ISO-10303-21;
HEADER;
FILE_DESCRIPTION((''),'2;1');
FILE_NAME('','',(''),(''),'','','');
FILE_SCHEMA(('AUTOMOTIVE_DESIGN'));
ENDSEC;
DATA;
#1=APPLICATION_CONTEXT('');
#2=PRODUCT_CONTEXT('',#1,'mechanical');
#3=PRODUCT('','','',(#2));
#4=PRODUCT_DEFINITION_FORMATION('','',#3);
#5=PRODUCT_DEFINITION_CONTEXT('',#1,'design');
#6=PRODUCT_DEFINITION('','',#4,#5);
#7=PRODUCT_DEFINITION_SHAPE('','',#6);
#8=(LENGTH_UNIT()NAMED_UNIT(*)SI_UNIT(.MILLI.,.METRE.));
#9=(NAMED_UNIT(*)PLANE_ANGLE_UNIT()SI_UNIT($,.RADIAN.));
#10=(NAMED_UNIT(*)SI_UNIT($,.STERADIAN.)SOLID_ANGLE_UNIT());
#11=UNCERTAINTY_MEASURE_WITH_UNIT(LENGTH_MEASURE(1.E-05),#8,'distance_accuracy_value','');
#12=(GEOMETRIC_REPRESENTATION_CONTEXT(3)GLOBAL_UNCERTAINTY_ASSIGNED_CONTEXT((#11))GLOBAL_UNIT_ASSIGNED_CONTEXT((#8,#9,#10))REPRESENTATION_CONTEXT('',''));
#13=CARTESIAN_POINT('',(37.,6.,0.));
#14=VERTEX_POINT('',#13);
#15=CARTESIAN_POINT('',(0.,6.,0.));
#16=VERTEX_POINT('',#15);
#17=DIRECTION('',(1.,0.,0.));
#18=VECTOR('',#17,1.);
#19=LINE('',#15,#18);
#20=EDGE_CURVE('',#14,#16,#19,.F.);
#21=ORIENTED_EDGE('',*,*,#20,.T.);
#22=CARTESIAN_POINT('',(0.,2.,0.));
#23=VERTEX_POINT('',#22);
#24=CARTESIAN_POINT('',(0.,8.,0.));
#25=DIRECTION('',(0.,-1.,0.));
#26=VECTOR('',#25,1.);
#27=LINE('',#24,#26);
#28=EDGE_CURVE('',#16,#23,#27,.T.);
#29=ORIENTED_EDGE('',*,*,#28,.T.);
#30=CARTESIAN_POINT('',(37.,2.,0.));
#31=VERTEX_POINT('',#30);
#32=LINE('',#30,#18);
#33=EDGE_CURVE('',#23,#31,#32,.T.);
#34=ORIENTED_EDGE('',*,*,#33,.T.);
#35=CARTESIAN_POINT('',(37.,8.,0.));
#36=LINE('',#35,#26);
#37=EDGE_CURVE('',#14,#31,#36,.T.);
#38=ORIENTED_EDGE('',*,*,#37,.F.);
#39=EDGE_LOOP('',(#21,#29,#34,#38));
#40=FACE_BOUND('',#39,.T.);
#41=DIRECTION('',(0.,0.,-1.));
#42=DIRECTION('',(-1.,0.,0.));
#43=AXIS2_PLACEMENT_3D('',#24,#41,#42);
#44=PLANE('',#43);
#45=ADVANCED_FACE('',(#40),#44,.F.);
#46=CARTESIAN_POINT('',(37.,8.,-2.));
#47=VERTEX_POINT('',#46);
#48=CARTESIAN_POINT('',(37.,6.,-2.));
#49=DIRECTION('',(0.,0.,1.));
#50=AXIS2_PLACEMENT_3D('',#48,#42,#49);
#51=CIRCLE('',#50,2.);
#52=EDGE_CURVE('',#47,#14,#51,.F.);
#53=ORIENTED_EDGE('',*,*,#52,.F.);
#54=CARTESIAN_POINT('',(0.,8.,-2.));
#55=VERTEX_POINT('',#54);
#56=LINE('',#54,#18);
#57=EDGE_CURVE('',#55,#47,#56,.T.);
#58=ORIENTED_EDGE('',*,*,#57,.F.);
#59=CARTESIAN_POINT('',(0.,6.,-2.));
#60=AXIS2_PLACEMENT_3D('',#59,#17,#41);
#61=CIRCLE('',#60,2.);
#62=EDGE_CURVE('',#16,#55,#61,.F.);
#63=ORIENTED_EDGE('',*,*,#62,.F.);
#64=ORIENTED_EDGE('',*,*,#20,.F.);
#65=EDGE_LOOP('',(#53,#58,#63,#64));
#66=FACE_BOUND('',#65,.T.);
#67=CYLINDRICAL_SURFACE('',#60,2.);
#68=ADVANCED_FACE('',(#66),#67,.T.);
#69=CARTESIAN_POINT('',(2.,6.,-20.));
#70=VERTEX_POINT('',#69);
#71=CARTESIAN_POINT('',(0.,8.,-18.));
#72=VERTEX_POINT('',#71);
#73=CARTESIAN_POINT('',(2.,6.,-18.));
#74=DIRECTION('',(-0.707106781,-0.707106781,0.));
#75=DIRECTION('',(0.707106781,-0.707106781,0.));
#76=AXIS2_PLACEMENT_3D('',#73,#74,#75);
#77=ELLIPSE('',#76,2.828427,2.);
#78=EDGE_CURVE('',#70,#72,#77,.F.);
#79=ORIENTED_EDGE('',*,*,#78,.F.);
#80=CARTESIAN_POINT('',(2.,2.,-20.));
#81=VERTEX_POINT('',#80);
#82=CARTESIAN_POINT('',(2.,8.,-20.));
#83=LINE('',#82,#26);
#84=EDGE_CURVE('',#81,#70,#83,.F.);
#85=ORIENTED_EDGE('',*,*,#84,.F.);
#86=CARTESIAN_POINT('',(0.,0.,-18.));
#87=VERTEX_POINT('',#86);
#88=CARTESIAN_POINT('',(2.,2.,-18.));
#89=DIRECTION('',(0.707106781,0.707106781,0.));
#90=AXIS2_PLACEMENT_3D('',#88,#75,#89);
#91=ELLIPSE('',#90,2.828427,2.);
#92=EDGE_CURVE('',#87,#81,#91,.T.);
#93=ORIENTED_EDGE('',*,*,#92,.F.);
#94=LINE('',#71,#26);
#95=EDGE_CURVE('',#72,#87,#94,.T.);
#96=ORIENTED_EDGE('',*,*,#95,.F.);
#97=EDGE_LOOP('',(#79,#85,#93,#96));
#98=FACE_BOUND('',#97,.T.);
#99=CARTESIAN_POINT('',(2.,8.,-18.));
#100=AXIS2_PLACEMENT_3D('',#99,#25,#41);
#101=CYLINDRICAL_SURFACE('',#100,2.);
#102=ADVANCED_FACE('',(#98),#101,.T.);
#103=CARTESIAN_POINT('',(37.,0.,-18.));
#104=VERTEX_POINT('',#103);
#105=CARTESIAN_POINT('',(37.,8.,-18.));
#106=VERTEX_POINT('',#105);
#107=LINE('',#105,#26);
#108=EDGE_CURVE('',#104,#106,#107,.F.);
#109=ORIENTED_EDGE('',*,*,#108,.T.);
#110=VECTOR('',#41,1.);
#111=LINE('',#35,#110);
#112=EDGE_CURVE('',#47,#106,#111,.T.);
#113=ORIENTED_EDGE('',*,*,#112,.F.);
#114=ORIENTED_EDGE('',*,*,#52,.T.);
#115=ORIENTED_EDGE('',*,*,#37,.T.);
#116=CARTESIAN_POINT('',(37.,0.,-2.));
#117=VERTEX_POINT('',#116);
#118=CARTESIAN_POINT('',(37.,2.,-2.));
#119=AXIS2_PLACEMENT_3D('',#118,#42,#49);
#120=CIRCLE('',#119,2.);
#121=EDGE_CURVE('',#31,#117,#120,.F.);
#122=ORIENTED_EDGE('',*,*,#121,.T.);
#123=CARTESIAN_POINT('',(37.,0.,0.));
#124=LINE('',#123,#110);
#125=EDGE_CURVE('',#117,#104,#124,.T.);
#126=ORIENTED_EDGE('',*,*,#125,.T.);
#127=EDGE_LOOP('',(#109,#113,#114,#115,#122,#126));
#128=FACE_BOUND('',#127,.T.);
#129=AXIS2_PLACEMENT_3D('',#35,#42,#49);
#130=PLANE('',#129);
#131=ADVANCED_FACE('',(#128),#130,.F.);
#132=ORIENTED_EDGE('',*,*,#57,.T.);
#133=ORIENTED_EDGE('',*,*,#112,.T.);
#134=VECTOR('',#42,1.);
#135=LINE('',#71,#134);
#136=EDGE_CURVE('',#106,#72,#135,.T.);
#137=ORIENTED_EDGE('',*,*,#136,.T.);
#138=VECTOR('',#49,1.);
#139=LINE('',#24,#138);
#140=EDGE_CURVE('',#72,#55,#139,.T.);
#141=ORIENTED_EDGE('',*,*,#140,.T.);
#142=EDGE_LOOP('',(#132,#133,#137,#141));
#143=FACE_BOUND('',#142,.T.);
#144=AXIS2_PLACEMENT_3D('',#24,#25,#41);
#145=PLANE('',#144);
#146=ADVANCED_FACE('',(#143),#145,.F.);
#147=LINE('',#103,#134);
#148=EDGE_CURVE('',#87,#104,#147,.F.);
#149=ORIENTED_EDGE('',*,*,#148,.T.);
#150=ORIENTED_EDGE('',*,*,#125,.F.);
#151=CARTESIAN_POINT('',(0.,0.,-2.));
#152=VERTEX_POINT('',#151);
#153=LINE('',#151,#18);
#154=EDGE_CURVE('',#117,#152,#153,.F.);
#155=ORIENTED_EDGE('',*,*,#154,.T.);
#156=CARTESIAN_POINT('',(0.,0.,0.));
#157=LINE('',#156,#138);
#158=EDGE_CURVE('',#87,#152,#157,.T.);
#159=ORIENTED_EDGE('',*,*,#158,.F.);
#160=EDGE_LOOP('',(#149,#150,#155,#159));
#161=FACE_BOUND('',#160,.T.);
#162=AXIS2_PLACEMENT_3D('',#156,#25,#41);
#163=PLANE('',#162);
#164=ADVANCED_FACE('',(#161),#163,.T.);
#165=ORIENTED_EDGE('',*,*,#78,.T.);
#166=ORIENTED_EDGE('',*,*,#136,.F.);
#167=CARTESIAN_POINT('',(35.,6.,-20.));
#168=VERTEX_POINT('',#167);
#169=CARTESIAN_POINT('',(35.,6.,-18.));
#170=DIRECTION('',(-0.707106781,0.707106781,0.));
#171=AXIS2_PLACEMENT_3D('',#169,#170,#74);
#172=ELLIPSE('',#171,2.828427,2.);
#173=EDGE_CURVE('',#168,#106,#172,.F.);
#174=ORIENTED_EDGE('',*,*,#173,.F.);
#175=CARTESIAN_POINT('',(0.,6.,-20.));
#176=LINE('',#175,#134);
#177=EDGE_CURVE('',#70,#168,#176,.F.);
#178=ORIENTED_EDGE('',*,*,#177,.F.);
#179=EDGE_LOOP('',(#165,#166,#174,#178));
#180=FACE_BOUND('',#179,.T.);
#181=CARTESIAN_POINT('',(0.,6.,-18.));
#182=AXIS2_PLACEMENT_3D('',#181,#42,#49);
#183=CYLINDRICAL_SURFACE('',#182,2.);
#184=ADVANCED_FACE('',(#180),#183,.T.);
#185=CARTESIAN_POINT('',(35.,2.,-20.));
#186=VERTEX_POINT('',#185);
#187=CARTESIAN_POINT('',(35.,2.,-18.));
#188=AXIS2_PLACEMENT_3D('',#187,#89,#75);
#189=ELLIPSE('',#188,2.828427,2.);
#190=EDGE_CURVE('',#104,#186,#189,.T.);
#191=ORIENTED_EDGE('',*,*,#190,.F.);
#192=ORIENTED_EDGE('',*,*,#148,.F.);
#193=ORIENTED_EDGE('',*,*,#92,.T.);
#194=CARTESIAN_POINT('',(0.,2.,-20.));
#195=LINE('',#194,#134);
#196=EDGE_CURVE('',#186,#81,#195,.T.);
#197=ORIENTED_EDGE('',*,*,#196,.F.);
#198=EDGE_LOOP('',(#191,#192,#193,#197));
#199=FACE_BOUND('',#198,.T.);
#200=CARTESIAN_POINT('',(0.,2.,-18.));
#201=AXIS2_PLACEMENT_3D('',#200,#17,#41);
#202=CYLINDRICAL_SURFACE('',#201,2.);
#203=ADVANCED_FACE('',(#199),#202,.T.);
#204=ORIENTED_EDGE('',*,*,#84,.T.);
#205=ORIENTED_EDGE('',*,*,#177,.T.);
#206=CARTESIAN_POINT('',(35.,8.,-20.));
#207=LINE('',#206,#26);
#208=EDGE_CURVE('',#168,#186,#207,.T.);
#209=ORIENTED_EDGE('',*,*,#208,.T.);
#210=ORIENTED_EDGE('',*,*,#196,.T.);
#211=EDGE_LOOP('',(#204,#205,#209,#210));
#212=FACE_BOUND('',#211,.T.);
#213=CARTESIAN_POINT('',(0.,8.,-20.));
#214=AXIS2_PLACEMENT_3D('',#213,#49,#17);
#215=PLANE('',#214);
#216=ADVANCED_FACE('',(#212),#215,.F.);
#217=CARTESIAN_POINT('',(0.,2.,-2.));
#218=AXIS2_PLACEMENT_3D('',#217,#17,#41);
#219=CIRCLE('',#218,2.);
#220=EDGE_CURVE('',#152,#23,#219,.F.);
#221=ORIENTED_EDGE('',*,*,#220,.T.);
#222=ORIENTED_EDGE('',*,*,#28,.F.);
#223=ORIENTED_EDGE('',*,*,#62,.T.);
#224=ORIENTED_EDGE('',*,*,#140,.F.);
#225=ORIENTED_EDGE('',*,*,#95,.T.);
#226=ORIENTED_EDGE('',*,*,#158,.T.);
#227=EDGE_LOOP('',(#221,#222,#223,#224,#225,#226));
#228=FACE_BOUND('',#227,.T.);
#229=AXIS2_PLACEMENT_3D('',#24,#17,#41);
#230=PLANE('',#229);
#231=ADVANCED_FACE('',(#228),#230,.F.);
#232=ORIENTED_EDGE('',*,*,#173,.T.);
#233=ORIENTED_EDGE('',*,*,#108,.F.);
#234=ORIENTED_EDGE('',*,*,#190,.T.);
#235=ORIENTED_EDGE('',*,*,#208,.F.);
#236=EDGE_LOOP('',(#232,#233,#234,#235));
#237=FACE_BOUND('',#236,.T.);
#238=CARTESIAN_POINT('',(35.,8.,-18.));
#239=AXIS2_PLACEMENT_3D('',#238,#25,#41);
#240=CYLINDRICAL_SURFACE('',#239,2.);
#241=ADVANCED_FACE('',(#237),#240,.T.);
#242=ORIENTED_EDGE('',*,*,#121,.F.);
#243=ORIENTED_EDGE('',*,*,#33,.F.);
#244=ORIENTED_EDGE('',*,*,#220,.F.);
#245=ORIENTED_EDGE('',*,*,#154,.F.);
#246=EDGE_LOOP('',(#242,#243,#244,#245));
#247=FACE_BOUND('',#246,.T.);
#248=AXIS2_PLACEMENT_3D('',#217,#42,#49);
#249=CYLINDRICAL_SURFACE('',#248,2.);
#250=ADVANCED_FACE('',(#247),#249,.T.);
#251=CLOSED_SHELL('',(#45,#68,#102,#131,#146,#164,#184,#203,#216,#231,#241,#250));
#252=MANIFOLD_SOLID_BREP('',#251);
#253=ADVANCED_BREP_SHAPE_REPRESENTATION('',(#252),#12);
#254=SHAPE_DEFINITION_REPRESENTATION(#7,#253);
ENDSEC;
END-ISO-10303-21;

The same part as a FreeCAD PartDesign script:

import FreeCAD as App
import Part
import Sketcher
from FreeCAD import Vector
Q = App.Units.Quantity


def edges_at(feature, points):
    """Names of the edges that pass closest to the given points."""
    edges = feature.Shape.Edges
    near = lambda p: min(range(len(edges)), key=lambda i: edges[i].distToShape(Part.Vertex(*p))[0])
    return sorted({f"Edge{near(p) + 1}" for p in points})


def add_polygon(sketch, points):
    """Adds a closed chain of lines whose ends are joined by coincident constraints."""
    first, n = sketch.GeometryCount, len(points)
    for a, b in zip(points, points[1:] + points[:1]):
        sketch.addGeometry(Part.LineSegment(App.Vector(*a, 0), App.Vector(*b, 0)), False)
    for i in range(n):
        sketch.addConstraint(Sketcher.Constraint("Coincident", first + i, 2, first + (i + 1) % n, 1))

doc = App.newDocument("Part")
params = doc.addObject("Spreadsheet::Sheet", "Params")
for row, (alias, value) in enumerate([
    ("sketch1_width", "37 mm"),
    ("sketch1_height", "20 mm"),
    ("pad1_length", "8 mm"),
    ("fillet_radius", "2 mm"),
    ("fillet2_radius", "2 mm"),
], start=1):
    params.set(f"A{row}", alias)
    params.set(f"B{row}", "=" + value)
    params.setAlias(f"B{row}", alias)

body = doc.addObject("PartDesign::Body", "Body")

# Sketch on XZ plane
sketch1 = body.newObject("Sketcher::SketchObject", "Sketch")
sketch1.AttachmentSupport = (doc.getObject("XZ_Plane"), [""])
sketch1.MapMode = "FlatFace"
add_polygon(sketch1, [(0, -20), (0, 0), (37, 0), (37, -20)])  # lines 0-3
sketch1.addConstraint([
    Sketcher.Constraint("Vertical", 0),
    Sketcher.Constraint("Horizontal", 1),
    Sketcher.Constraint("Vertical", 2),
    Sketcher.Constraint("Horizontal", 3),
    Sketcher.Constraint("Coincident", 0, 2, -1, 1),
    Sketcher.Constraint("DistanceX", 1, 1, 1, 2, Q("37 mm")),
    Sketcher.Constraint("DistanceY", 0, 1, 0, 2, Q("20 mm")),
])
sketch1.setExpression("Constraints[9]", "Params.sketch1_width")
sketch1.setExpression("Constraints[10]", "Params.sketch1_height")
pad1 = body.newObject("PartDesign::Pad", "Pad")
pad1.Profile = sketch1
pad1.setExpression("Length", "Params.pad1_length")
pad1.Reversed = True
doc.recompute()

fillet = body.newObject("PartDesign::Fillet", "Fillet")
fillet.Base = (pad1, edges_at(pad1, [(18.5, 8, 0)]))
fillet.setExpression("Radius", "Params.fillet_radius")
doc.recompute()

fillet2 = body.newObject("PartDesign::Fillet", "Fillet001")
fillet2.Base = (fillet, edges_at(fillet, [
    (18.5, 8, -20),
    (18.5, 0, -20),
    (18.5, 0, 0),
    (0, 4, -20),
    (37, 4, -20),
]))
fillet2.setExpression("Radius", "Params.fillet2_radius")

doc.recompute()
